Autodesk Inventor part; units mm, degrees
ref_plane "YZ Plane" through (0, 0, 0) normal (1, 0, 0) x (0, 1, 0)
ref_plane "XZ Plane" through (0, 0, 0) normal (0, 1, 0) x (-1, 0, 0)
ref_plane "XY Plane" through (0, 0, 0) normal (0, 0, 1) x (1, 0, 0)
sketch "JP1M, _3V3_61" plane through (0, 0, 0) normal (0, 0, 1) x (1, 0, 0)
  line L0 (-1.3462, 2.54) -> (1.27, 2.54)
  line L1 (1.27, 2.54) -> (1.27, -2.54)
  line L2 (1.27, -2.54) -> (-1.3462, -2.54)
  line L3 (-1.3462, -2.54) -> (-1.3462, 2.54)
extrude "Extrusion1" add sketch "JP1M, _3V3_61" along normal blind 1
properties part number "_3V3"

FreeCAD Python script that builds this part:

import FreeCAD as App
import Part
import Sketcher

V = App.Vector
Q = App.Units.Quantity


def add_polygon(sketch, points):
    """Adds a closed chain of lines whose ends are joined by coincident constraints."""
    first, n = sketch.GeometryCount, len(points)
    for a, b in zip(points, points[1:] + points[:1]):
        sketch.addGeometry(Part.LineSegment(App.Vector(*a, 0), App.Vector(*b, 0)), False)
    for i in range(n):
        sketch.addConstraint(Sketcher.Constraint("Coincident", first + i, 2, first + (i + 1) % n, 1))

doc = App.newDocument("Part")
params = doc.addObject("Spreadsheet::Sheet", "Params")
for row, (alias, value) in enumerate([
    ("sketch1_height", "0.2 in"),
    ("sketch1_width", "0.103 in"),
    ("pad1_length", "1 mm"),
], start=1):
    params.set(f"A{row}", alias)
    params.set(f"B{row}", "=" + value)
    params.setAlias(f"B{row}", alias)

body = doc.addObject("PartDesign::Body", "Body")

sketch1 = body.newObject("Sketcher::SketchObject", "Sketch")
sketch1.AttachmentSupport = (doc.getObject("XY_Plane"), [""])
sketch1.MapMode = "FlatFace"
add_polygon(sketch1, [(1.3, 2.5), (-1.3, 2.5), (-1.3, -2.5), (1.3, -2.5)])
sketch1.addConstraint(Sketcher.Constraint("Horizontal", 0))
sketch1.addConstraint(Sketcher.Constraint("Vertical", 1))
sketch1.addConstraint(Sketcher.Constraint("Horizontal", 2))
sketch1.addConstraint(Sketcher.Constraint("Vertical", 3))
sketch1.addConstraint(Sketcher.Constraint("DistanceY", 1, 2, 1, 1, Q("0.2 in")))
sketch1.addConstraint(Sketcher.Constraint("DistanceY", -1, 1, 0, 2, Q("0.1 in")))
sketch1.addConstraint(Sketcher.Constraint("DistanceX", 0, 2, 0, 1, Q("0.103 in")))
sketch1.addConstraint(Sketcher.Constraint("DistanceX", -1, 1, 2, 2, Q("0.05 in")))
sketch1.setExpression("Constraints[8]", "Params.sketch1_height")
sketch1.setExpression("Constraints[10]", "Params.sketch1_width")
pad1 = body.newObject("PartDesign::Pad", "Pad")
pad1.Profile = sketch1
pad1.setExpression("Length", "Params.pad1_length")

doc.recompute()
